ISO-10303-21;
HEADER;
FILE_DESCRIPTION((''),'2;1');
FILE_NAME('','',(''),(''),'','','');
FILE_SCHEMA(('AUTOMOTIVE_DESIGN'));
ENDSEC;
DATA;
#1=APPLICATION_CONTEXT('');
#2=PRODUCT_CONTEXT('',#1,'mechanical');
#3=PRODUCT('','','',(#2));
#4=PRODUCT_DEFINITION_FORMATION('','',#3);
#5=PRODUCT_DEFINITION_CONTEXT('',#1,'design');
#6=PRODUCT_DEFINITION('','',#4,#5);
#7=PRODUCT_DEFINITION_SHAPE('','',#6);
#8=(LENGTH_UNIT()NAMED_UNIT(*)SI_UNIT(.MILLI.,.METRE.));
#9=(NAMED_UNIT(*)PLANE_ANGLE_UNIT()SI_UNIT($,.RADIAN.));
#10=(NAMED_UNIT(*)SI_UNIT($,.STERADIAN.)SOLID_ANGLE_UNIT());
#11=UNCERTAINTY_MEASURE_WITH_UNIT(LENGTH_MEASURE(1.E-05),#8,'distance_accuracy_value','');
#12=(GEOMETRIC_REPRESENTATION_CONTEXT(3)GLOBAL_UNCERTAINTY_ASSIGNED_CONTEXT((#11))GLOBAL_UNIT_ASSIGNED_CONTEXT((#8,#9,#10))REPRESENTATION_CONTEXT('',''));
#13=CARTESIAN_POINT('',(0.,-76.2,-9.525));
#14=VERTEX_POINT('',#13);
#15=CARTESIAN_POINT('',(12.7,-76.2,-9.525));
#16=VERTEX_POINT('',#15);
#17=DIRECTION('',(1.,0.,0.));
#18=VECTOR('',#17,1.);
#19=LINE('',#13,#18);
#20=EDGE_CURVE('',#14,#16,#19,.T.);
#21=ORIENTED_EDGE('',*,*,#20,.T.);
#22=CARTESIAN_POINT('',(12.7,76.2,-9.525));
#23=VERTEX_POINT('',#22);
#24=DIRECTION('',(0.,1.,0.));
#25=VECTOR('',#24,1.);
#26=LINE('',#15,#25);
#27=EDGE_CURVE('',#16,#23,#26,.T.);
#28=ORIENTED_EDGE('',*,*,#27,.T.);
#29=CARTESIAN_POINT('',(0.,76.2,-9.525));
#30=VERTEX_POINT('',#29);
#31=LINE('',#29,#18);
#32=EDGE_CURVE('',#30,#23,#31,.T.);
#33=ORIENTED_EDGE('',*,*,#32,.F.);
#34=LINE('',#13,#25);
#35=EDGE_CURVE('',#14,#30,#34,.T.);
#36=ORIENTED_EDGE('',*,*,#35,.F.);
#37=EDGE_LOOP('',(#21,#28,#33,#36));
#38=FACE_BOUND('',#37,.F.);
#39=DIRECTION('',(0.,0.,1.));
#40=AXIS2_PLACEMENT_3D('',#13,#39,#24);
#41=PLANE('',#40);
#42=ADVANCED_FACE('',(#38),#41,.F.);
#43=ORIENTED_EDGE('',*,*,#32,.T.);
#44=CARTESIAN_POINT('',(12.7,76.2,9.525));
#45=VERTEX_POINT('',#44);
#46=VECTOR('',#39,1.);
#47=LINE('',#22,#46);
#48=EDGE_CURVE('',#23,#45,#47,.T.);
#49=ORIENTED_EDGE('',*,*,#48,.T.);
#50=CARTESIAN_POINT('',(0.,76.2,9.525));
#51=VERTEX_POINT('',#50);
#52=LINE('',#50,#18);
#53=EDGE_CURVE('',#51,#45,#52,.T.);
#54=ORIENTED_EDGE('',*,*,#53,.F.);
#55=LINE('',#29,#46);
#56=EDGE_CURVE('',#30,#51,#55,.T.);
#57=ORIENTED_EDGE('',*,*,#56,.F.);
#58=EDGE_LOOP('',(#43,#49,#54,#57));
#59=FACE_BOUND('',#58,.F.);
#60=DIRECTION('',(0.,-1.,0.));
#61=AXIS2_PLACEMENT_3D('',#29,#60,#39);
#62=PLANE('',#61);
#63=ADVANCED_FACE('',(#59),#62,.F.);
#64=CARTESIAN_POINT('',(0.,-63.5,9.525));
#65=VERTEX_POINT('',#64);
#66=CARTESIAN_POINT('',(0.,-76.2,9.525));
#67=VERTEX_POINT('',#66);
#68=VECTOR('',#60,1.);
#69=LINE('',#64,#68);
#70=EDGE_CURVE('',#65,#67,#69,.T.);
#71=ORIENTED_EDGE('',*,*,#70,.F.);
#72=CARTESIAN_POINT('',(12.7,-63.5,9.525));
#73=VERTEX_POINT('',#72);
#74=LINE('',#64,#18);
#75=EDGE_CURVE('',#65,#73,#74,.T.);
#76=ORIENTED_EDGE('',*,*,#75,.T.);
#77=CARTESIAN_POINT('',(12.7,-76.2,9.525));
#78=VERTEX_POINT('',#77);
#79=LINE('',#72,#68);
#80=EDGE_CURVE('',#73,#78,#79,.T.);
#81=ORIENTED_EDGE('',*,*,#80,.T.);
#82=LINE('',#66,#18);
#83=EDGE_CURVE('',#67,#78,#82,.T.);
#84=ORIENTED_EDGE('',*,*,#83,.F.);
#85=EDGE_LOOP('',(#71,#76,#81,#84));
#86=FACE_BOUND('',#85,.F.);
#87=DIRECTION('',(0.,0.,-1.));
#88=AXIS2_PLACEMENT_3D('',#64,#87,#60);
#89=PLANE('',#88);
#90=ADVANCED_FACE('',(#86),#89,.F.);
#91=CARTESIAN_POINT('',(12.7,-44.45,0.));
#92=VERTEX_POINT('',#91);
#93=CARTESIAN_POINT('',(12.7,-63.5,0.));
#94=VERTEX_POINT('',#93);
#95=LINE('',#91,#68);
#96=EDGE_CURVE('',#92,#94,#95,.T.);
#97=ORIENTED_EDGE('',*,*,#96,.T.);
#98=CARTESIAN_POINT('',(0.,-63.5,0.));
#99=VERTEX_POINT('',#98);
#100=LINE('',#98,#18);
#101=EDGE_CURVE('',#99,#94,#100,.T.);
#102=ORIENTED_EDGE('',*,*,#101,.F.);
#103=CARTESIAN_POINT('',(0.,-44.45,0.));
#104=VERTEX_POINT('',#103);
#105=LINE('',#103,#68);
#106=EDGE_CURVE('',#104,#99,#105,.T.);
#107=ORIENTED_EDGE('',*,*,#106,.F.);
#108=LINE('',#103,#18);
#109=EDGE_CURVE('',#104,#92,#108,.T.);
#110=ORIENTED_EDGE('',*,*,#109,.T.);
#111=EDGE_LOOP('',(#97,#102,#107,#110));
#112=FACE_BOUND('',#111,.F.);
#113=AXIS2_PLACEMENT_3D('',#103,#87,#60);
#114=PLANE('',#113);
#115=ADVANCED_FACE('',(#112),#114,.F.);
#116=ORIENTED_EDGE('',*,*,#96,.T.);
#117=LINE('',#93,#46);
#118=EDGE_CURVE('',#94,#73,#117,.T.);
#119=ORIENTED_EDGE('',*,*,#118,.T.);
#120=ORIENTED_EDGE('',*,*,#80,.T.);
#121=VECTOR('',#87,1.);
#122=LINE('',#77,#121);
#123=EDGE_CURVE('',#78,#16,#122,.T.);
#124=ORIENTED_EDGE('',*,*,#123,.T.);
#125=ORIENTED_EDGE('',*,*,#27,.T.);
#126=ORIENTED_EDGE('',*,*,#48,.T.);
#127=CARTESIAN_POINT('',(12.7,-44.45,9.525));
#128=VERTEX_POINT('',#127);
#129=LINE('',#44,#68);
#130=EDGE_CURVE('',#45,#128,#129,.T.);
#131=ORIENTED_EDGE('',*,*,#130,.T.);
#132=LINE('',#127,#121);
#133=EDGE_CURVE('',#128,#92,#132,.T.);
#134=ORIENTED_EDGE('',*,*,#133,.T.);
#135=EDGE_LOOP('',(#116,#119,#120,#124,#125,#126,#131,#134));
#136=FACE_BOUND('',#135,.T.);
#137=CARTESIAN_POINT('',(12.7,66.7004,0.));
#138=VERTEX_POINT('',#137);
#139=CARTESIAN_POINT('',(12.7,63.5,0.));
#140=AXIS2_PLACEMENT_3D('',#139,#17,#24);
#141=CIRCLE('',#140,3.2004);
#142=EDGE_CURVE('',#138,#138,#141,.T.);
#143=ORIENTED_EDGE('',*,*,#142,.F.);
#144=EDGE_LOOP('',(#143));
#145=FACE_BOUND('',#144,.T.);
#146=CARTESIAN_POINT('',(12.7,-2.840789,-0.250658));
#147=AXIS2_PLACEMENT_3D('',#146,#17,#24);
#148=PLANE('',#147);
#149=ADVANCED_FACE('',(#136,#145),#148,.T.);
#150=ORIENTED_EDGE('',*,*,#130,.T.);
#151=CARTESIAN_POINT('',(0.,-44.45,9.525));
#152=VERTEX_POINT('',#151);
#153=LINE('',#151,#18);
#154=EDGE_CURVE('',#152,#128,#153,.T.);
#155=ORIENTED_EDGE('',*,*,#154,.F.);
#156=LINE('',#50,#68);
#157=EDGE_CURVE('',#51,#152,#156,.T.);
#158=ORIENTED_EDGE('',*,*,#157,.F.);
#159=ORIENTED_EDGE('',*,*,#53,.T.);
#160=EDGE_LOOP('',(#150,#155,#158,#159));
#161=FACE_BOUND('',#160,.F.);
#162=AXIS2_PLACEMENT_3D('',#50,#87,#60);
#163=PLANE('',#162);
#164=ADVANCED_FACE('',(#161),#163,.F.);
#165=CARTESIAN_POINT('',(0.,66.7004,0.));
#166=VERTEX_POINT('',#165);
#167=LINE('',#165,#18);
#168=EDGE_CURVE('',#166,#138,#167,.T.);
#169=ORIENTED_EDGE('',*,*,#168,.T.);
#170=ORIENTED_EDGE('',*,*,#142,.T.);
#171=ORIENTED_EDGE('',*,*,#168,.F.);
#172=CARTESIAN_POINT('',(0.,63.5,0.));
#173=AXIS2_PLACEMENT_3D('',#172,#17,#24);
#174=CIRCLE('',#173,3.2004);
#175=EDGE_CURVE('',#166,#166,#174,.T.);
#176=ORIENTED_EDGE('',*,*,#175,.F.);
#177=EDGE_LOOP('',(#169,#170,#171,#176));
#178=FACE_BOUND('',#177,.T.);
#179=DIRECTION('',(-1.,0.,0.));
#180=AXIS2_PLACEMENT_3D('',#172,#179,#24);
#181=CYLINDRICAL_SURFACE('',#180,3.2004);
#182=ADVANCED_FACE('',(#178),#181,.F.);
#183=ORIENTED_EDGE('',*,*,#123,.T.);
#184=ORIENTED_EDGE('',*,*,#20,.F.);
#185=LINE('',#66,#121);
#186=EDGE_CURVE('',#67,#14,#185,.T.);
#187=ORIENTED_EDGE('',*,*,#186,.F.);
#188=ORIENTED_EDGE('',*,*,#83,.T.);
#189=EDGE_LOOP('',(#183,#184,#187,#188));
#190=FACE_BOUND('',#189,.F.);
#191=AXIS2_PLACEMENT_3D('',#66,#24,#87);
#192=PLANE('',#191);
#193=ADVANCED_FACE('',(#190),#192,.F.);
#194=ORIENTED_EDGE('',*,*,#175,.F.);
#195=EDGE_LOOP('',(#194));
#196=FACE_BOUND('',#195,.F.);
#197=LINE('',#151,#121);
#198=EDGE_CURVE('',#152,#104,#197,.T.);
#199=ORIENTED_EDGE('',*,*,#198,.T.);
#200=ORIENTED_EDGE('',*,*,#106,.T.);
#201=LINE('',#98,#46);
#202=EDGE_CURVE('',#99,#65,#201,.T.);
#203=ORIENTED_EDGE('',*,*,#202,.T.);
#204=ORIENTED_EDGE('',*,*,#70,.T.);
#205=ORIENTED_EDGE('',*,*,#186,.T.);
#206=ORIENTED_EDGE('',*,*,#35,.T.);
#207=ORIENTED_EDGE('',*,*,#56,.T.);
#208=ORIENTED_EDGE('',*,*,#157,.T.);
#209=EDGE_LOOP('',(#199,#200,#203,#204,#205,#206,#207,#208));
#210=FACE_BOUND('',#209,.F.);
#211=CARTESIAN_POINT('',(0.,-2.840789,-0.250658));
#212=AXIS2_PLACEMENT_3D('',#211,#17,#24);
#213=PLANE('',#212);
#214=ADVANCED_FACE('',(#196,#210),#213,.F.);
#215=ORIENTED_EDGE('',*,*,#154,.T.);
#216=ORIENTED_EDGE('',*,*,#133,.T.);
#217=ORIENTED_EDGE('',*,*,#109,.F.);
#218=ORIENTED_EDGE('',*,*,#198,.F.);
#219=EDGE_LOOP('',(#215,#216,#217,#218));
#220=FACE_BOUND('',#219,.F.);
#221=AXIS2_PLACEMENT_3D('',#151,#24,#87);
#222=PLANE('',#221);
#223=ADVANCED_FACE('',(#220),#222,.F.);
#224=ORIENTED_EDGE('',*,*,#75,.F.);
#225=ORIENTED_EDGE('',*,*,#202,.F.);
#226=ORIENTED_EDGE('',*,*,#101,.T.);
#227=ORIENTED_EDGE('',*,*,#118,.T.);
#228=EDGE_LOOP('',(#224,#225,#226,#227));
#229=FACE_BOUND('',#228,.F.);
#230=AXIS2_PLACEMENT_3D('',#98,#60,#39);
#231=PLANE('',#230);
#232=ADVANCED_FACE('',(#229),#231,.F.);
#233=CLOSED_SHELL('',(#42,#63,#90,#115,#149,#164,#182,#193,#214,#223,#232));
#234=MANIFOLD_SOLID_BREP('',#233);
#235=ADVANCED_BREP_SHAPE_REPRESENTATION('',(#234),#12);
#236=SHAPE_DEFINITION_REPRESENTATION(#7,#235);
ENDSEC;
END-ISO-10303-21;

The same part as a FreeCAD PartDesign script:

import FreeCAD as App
import Part
import Sketcher
Q = App.Units.Quantity


def add_polygon(sketch, points):
    """Adds a closed chain of lines whose ends are joined by coincident constraints."""
    first, n = sketch.GeometryCount, len(points)
    for a, b in zip(points, points[1:] + points[:1]):
        sketch.addGeometry(Part.LineSegment(App.Vector(*a, 0), App.Vector(*b, 0)), False)
    for i in range(n):
        sketch.addConstraint(Sketcher.Constraint("Coincident", first + i, 2, first + (i + 1) % n, 1))

doc = App.newDocument("Part")
params = doc.addObject("Spreadsheet::Sheet", "Params")
for row, (alias, value) in enumerate([
    ("sketch1_width", "6 in"),
    ("sketch1_diameter", "0.252 in"),
    ("sketch1_width2", "0.5 in"),
    ("sketch1_width3", "4.75 in"),
    ("pad1_length", "0.5 in"),
], start=1):
    params.set(f"A{row}", alias)
    params.set(f"B{row}", "=" + value)
    params.setAlias(f"B{row}", alias)

body = doc.addObject("PartDesign::Body", "Body")

# Sketch on YZ plane
sketch1 = body.newObject("Sketcher::SketchObject", "Sketch")
sketch1.AttachmentSupport = (doc.getObject("YZ_Plane"), [""])
sketch1.MapMode = "FlatFace"
add_polygon(sketch1, [(76.2, -9.5), (76.2, 9.5), (-44.5, 9.5), (-44.5, 0), (-63.5, 0), (-63.5, 9.5), (-76.2, 9.5), (-76.2, -9.5)])  # lines 0-7
sketch1.addGeometry(Part.Circle(App.Vector(63.5, 0, 0), App.Vector(0, 0, 1), 3.2), False)  # 8
sketch1.addConstraint(Sketcher.Constraint("Vertical", 0))
sketch1.addConstraint(Sketcher.Constraint("Horizontal", 1))
sketch1.addConstraint(Sketcher.Constraint("Vertical", 2))
sketch1.addConstraint(Sketcher.Constraint("Horizontal", 3))
sketch1.addConstraint(Sketcher.Constraint("Vertical", 4))
sketch1.addConstraint(Sketcher.Constraint("Horizontal", 5))
sketch1.addConstraint(Sketcher.Constraint("Vertical", 6))
sketch1.addConstraint(Sketcher.Constraint("Horizontal", 7))
sketch1.addConstraint(Sketcher.Constraint("Symmetric", 0, 2, 6, 2, -1, 1))
sketch1.addConstraint(Sketcher.Constraint("PointOnObject", 8, 3, -1))
sketch1.addConstraint(Sketcher.Constraint("PointOnObject", 2, 2, -1))
sketch1.addConstraint(Sketcher.Constraint("Horizontal", 1, 2, 4, 2))
sketch1.addConstraint(Sketcher.Constraint("Equal", 3, 0))
sketch1.addConstraint(Sketcher.Constraint("DistanceX", 7, 1, 7, 2, Q("6 in")))
sketch1.addConstraint(Sketcher.Constraint("Diameter", 8, Q("0.252 in")))
sketch1.addConstraint(Sketcher.Constraint("DistanceX", 5, 2, 5, 1, Q("0.5 in")))
sketch1.addConstraint(Sketcher.Constraint("DistanceX", 3, 2, 8, 3, Q("5 in")))
sketch1.addConstraint(Sketcher.Constraint("DistanceX", 1, 2, 1, 1, Q("4.75 in")))
sketch1.setExpression("Constraints[21]", "Params.sketch1_width")
sketch1.setExpression("Constraints[22]", "Params.sketch1_diameter")
sketch1.setExpression("Constraints[23]", "Params.sketch1_width2")
sketch1.setExpression("Constraints[25]", "Params.sketch1_width3")
pad1 = body.newObject("PartDesign::Pad", "Pad")
pad1.Profile = sketch1
pad1.setExpression("Length", "Params.pad1_length")

doc.recompute()
